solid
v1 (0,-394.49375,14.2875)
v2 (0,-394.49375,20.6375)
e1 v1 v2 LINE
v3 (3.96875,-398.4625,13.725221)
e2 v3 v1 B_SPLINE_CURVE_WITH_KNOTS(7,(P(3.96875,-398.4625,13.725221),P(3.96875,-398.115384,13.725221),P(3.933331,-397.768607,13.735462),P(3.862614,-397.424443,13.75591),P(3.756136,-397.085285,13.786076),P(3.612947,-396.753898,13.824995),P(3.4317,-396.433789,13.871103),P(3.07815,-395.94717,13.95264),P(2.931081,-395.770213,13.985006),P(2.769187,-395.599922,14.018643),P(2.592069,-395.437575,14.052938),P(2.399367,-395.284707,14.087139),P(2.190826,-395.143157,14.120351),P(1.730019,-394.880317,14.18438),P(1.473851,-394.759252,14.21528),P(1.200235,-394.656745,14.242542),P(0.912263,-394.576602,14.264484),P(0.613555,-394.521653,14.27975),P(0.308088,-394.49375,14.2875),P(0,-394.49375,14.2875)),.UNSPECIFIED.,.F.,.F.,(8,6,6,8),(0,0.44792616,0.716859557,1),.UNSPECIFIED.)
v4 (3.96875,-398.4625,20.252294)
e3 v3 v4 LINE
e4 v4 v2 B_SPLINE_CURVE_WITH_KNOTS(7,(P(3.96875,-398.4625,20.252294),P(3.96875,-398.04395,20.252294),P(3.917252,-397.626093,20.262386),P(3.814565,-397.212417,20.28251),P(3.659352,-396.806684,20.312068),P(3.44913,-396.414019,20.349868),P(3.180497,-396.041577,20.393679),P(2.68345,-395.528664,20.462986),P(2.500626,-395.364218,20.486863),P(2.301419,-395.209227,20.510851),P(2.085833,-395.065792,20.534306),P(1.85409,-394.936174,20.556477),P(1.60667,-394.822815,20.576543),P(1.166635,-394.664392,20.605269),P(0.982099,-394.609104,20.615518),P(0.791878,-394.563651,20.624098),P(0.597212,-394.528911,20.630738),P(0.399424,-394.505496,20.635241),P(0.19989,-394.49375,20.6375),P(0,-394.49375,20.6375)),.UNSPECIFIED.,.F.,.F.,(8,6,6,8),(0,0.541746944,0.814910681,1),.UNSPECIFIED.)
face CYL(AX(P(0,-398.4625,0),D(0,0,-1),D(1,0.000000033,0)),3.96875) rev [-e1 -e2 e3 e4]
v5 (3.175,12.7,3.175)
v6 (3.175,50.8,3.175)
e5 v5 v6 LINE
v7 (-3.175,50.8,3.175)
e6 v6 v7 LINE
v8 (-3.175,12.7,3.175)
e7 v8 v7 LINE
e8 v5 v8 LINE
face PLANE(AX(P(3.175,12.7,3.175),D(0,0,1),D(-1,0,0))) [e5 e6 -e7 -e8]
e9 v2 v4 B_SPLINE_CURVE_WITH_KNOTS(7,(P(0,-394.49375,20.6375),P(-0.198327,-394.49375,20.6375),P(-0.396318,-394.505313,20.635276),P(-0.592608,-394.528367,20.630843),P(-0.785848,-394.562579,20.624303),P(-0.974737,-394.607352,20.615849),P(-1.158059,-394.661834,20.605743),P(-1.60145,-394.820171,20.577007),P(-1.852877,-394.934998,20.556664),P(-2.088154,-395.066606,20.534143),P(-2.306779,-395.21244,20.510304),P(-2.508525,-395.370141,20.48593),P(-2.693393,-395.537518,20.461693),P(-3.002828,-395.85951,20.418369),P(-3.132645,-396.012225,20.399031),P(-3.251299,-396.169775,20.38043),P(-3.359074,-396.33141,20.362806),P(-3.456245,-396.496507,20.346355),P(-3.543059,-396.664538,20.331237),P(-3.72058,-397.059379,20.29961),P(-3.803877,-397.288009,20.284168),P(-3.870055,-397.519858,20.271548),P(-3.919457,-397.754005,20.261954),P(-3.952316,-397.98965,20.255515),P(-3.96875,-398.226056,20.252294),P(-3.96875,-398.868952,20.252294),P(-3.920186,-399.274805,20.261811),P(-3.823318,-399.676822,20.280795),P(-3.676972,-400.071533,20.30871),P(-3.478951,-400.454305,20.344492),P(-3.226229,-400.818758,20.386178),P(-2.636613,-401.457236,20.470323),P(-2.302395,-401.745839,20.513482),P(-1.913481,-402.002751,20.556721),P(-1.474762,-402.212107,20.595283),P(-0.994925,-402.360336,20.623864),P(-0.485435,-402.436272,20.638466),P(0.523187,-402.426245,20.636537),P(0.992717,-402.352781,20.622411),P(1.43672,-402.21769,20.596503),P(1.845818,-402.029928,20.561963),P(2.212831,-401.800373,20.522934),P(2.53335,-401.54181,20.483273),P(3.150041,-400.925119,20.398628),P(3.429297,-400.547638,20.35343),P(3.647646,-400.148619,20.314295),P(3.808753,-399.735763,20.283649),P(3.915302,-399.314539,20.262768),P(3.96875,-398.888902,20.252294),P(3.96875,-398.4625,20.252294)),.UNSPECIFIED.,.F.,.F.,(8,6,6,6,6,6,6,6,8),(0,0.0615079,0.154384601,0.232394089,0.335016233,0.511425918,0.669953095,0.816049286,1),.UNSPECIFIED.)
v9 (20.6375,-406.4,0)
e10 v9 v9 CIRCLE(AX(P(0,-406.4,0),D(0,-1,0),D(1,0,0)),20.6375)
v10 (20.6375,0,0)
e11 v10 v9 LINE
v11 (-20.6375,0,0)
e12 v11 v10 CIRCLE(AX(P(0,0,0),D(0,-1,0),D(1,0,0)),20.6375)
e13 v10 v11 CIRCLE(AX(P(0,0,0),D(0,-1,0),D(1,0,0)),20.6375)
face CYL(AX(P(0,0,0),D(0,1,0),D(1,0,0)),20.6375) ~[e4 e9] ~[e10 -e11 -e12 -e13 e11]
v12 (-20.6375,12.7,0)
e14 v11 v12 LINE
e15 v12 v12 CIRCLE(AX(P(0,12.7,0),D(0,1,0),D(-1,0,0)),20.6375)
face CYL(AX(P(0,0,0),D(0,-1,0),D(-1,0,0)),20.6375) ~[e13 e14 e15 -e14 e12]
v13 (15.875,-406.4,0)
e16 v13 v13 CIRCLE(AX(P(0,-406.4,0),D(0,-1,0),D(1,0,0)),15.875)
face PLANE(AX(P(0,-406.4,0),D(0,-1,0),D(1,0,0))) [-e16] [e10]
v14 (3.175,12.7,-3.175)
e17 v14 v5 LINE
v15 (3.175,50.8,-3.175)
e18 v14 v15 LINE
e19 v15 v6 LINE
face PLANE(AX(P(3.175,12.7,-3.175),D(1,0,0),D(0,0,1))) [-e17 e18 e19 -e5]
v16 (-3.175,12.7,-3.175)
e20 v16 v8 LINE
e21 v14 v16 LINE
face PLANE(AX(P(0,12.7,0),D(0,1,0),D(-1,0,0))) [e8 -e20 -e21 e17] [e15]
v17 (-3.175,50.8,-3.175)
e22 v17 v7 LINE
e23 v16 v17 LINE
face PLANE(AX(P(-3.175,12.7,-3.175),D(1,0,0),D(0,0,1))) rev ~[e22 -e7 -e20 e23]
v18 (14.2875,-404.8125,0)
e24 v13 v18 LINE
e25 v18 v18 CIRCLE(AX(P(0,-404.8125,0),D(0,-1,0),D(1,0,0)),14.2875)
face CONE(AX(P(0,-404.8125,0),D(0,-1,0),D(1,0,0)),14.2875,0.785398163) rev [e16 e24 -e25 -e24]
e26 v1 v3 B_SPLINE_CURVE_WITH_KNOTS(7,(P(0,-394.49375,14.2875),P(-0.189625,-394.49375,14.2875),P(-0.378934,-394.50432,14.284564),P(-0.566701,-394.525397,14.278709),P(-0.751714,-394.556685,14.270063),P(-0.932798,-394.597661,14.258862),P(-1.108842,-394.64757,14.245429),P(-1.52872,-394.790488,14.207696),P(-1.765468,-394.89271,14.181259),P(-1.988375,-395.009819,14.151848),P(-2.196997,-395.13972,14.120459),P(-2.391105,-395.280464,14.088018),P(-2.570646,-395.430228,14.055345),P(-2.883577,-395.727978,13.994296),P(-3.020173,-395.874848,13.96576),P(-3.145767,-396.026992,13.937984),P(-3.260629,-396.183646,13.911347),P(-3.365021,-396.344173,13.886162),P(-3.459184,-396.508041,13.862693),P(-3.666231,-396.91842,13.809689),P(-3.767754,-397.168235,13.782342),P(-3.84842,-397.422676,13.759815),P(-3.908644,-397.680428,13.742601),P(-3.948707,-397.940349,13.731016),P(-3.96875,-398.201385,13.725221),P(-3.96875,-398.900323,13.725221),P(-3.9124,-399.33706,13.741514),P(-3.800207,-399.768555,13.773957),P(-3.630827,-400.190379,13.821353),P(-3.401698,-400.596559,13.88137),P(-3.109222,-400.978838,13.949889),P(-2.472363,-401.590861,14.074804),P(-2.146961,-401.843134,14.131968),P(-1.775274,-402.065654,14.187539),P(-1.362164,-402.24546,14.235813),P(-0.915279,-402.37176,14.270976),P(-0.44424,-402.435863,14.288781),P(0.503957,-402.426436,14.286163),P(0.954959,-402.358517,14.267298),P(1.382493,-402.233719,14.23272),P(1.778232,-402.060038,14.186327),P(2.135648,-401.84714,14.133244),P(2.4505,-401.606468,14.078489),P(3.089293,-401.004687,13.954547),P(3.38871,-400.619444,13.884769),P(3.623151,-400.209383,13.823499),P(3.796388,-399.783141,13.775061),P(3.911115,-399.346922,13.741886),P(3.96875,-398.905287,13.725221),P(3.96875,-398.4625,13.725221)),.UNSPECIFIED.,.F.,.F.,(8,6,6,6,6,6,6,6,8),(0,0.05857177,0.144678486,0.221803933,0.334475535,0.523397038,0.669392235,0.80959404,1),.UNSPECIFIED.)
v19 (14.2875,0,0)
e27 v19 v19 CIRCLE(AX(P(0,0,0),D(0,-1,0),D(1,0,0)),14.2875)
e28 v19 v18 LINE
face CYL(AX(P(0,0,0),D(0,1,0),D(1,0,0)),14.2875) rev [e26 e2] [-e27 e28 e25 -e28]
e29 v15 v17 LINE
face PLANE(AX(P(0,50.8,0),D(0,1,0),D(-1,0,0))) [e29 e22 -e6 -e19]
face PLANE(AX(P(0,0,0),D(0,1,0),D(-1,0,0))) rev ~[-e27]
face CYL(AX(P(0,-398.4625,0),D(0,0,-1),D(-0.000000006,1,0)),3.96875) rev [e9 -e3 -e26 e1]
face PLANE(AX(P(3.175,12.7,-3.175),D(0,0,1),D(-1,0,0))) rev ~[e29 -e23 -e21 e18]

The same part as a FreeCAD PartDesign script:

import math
import FreeCAD as App
import Part
import Sketcher
Q = App.Units.Quantity


def edges_at(feature, points):
    """Names of the edges that pass closest to the given points."""
    edges = feature.Shape.Edges
    near = lambda p: min(range(len(edges)), key=lambda i: edges[i].distToShape(Part.Vertex(*p))[0])
    return sorted({f"Edge{near(p) + 1}" for p in points})


def add_polygon(sketch, points):
    """Adds a closed chain of lines whose ends are joined by coincident constraints."""
    first, n = sketch.GeometryCount, len(points)
    for a, b in zip(points, points[1:] + points[:1]):
        sketch.addGeometry(Part.LineSegment(App.Vector(*a, 0), App.Vector(*b, 0)), False)
    for i in range(n):
        sketch.addConstraint(Sketcher.Constraint("Coincident", first + i, 2, first + (i + 1) % n, 1))

doc = App.newDocument("Part")
params = doc.addObject("Spreadsheet::Sheet", "Params")
for row, (alias, value) in enumerate([
    ("sketch1_diameter", "1.625 in"),
    ("sketch1_diameter2", "1.125 in"),
    ("pad1_length", "16 in"),
    ("sketch2_diameter", "1.625 in"),
    ("pad2_length", "0.5 in"),
    ("sketch3_width", "0.25 in"),
    ("pad3_length", "1.5 in"),
    ("sketch4_radius", "0.15625 in"),
    ("pocket1_length", "1 in"),
    ("chamfer_size", "0.0625 in"),
], start=1):
    params.set(f"A{row}", alias)
    params.set(f"B{row}", "=" + value)
    params.setAlias(f"B{row}", alias)

body = doc.addObject("PartDesign::Body", "Body")

# Sketch on XZ plane
sketch1 = doc.addObject("Sketcher::SketchObject", "Sketch")
body.addObject(sketch1)
sketch1.AttachmentSupport = (doc.XZ_Plane, [""])
sketch1.MapMode = "FlatFace"
sketch1.addGeometry([
    Part.Circle(App.Vector(0, 0, 0), App.Vector(0, 0, 1), 20.6375),
    Part.Circle(App.Vector(0, 0, 0), App.Vector(0, 0, 1), 14.2875),
], False)
sketch1.addConstraint([
    Sketcher.Constraint("Coincident", 0, 3, -1, 1),
    Sketcher.Constraint("Coincident", 1, 3, -1, 1),
    Sketcher.Constraint("Diameter", 0, Q("1.625 in")),
    Sketcher.Constraint("Diameter", 1, Q("1.125 in")),
])
sketch1.setExpression("Constraints[2]", "Params.sketch1_diameter")
sketch1.setExpression("Constraints[3]", "Params.sketch1_diameter2")
pad1 = doc.addObject("PartDesign::Pad", "Pad")
body.addObject(pad1)
pad1.Profile = sketch1
pad1.setExpression("Length", "Params.pad1_length")

# Sketch on XZ plane
sketch2 = doc.addObject("Sketcher::SketchObject", "Sketch001")
body.addObject(sketch2)
sketch2.AttachmentSupport = (doc.XZ_Plane, [""])
sketch2.MapMode = "FlatFace"
sketch2.addGeometry(Part.Circle(App.Vector(0, 0, 0), App.Vector(0, 0, 1), 20.6375), False)
sketch2.addConstraint([
    Sketcher.Constraint("Coincident", 0, 3, -1, 1),
    Sketcher.Constraint("Diameter", 0, Q("1.625 in")),
])
sketch2.setExpression("Constraints[1]", "Params.sketch2_diameter")
pad2 = doc.addObject("PartDesign::Pad", "Pad001")
body.addObject(pad2)
pad2.Profile = sketch2
pad2.setExpression("Length", "Params.pad2_length")
pad2.Reversed = True

# Sketch on XZ plane
sketch3 = doc.addObject("Sketcher::SketchObject", "Sketch002")
body.addObject(sketch3)
sketch3.AttachmentSupport = (doc.XZ_Plane, [""])
sketch3.MapMode = "FlatFace"
sketch3.AttachmentOffset = App.Placement(App.Vector(0, 0, -0.5 * 25.4), App.Rotation())
add_polygon(sketch3, [(3.175, 3.175), (3.175, -3.175), (-3.175, -3.175), (-3.175, 3.175)])  # lines 0-3
sketch3.addConstraint([
    Sketcher.Constraint("Vertical", 0),
    Sketcher.Constraint("Horizontal", 1),
    Sketcher.Constraint("Vertical", 2),
    Sketcher.Constraint("Horizontal", 3),
    Sketcher.Constraint("Symmetric", 0, 2, 2, 2, -1, 1),
    Sketcher.Constraint("Equal", 3, 0),
    Sketcher.Constraint("DistanceX", 1, 2, 1, 1, Q("0.25 in")),
])
sketch3.setExpression("Constraints[10]", "Params.sketch3_width")
pad3 = doc.addObject("PartDesign::Pad", "Pad002")
body.addObject(pad3)
pad3.Profile = sketch3
pad3.setExpression("Length", "Params.pad3_length")
pad3.Reversed = True

# Sketch on XY plane
sketch4 = doc.addObject("Sketcher::SketchObject", "Sketch003")
body.addObject(sketch4)
sketch4.AttachmentSupport = (doc.XY_Plane, [""])
sketch4.MapMode = "FlatFace"
sketch4.addGeometry([
    Part.ArcOfCircle(Part.Circle(App.Vector(0, -398.4625, 0), App.Vector(0, 0, 1), 3.96875), math.radians(90), math.radians(360)),
    Part.ArcOfCircle(Part.Circle(App.Vector(0, -398.4625, 0), App.Vector(0, 0, 1), 3.96875), math.radians(0.000002), math.radians(89.999998)),
], False)
sketch4.addConstraint([
    Sketcher.Constraint("Tangent", 0, 1, 1, 2),
    Sketcher.Constraint("Coincident", 1, 1, 0, 2),
    Sketcher.Constraint("PointOnObject", 0, 3, -2),
    Sketcher.Constraint("PointOnObject", 0, 1, -2),
    Sketcher.Constraint("Horizontal", 0, 3, 1, 1),
    Sketcher.Constraint("Radius", 0, Q("0.15625 in")),
    Sketcher.Constraint("DistanceY", 0, 3, -1, 1, Q("15.6875 in")),
])
sketch4.setExpression("Constraints[5]", "Params.sketch4_radius")
pocket1 = doc.addObject("PartDesign::Pocket", "Pocket")
body.addObject(pocket1)
pocket1.Profile = sketch4
pocket1.setExpression("Length", "Params.pocket1_length")
pocket1.Reversed = True
doc.recompute()

chamfer = doc.addObject("PartDesign::Chamfer", "Chamfer")
body.addObject(chamfer)
chamfer.Base = (pocket1, edges_at(pocket1, [(-14.287, -406.4, 0)]))
chamfer.setExpression("Size", "Params.chamfer_size")

doc.recompute()
